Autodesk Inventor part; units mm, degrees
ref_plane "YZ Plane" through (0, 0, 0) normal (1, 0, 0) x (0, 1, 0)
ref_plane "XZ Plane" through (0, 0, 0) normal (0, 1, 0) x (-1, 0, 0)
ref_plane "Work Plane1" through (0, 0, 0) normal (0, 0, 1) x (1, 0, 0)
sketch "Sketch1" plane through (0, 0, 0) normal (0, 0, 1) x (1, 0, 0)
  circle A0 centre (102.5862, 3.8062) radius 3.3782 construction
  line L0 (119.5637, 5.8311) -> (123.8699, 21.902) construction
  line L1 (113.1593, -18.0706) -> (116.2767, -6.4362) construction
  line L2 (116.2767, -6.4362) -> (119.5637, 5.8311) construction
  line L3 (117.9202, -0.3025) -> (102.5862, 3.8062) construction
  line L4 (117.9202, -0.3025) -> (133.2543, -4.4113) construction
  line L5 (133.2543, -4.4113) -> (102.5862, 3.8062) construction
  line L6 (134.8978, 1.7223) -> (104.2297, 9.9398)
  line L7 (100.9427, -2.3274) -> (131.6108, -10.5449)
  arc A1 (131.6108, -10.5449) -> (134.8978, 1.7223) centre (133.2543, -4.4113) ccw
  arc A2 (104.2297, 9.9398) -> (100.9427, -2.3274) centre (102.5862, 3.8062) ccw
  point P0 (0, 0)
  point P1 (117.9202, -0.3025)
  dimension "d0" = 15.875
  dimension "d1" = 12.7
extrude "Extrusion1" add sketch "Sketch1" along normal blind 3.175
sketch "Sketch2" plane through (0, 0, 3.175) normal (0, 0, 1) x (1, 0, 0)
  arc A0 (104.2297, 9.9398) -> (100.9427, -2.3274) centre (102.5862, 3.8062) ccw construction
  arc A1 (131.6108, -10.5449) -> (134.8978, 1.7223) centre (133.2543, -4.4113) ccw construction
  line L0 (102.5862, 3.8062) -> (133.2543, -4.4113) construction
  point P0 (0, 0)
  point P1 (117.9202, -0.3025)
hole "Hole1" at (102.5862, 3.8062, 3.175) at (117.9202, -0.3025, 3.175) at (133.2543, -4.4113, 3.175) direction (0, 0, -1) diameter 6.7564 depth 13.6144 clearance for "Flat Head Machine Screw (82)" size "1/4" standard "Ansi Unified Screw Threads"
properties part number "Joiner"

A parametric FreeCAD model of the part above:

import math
import FreeCAD as App
import Part
import Sketcher
from FreeCAD import Vector
Q = App.Units.Quantity

doc = App.newDocument("Part")
body = doc.addObject("PartDesign::Body", "Body")

# Sketch on XY plane
sketch1 = body.newObject("Sketcher::SketchObject", "Sketch")
sketch1.AttachmentSupport = (doc.getObject("XY_Plane"), [""])
sketch1.MapMode = "FlatFace"
sketch1.addGeometry(Part.ArcOfCircle(Part.Circle(Vector(133, -4, 0), Vector(0, 0, 1), 6), math.radians(-105), math.radians(75)), False)
sketch1.addGeometry(Part.LineSegment(Vector(135, 2, 0), Vector(104, 10, 0)), False)
sketch1.addGeometry(Part.ArcOfCircle(Part.Circle(Vector(103, 4, 0), Vector(0, 0, 1), 6), math.radians(75), math.radians(255)), False)
sketch1.addGeometry(Part.LineSegment(Vector(101, -2, 0), Vector(132, -11, 0)), False)
sketch1.addConstraint(Sketcher.Constraint("Tangent", 0, 2, 1, 1))
sketch1.addConstraint(Sketcher.Constraint("Tangent", 1, 2, 2, 1))
sketch1.addConstraint(Sketcher.Constraint("Tangent", 2, 2, 3, 1))
sketch1.addConstraint(Sketcher.Constraint("Tangent", 3, 2, 0, 1))
sketch1.addConstraint(Sketcher.Constraint("Equal", 0, 2))
sketch1.addConstraint(Sketcher.Constraint("Radius", 0, Q("0.25 in")))
sketch1.addConstraint(Sketcher.Constraint("Angle", 1, Q("165 deg")))
sketch1.addConstraint(Sketcher.Constraint("Distance", 1, Q("1.25 in")))
sketch1.addConstraint(Sketcher.Constraint("DistanceY", -1, 1, 0, 2, Q("0.0678 in")))
sketch1.addConstraint(Sketcher.Constraint("DistanceX", -1, 1, 0, 3, 133.2543))
pad1 = body.newObject("PartDesign::Pad", "Pad")
pad1.Profile = sketch1
pad1.Length = Q("0.125 in")

# Sketch on XY plane
sketch2 = body.newObject("Sketcher::SketchObject", "Sketch001")
sketch2.AttachmentSupport = (doc.getObject("XY_Plane"), [""])
sketch2.MapMode = "FlatFace"
sketch2.AttachmentOffset = App.Placement(Vector(0, 0, 0.125 * 25.4), App.Rotation())
sketch2.addGeometry(Part.Circle(Vector(102.6, 3.8, 0), Vector(0, 0, 1), 3.4), False)
sketch2.addGeometry(Part.Circle(Vector(117.9, -0.3, 0), Vector(0, 0, 1), 3.4), False)
sketch2.addGeometry(Part.Circle(Vector(133.3, -4.4, 0), Vector(0, 0, 1), 3.4), False)
sketch2.addConstraint(Sketcher.Constraint("Equal", 0, 1))
sketch2.addConstraint(Sketcher.Constraint("Equal", 1, 2))
sketch2.addConstraint(Sketcher.Constraint("Diameter", 0, Q("0.266 in")))
sketch2.addConstraint(Sketcher.Constraint("DistanceY", 1, 3, -1, 1, Q("0.0119 in")))
sketch2.addConstraint(Sketcher.Constraint("DistanceX", 0, 3, 1, 3, Q("0.6037 in")))
sketch2.addConstraint(Sketcher.Constraint("DistanceX", 1, 3, 2, 3, Q("0.6037 in")))
sketch2.addConstraint(Sketcher.Constraint("DistanceX", -1, 1, 0, 3, 102.5862))
sketch2.addConstraint(Sketcher.Constraint("DistanceY", -1, 1, 0, 3, 3.8062))
sketch2.addConstraint(Sketcher.Constraint("DistanceY", 2, 3, -1, 1, 4.4113))
doc.recompute()
hole = body.newObject("PartDesign::Hole", "Hole")
hole.Profile = sketch2
hole.ThreadType = "None"
hole.Diameter = Q("0.266 in")
hole.DepthType = "Dimension"
hole.Depth = Q("0.536 in")
hole.DrillPoint = "Flat"

doc.recompute()
